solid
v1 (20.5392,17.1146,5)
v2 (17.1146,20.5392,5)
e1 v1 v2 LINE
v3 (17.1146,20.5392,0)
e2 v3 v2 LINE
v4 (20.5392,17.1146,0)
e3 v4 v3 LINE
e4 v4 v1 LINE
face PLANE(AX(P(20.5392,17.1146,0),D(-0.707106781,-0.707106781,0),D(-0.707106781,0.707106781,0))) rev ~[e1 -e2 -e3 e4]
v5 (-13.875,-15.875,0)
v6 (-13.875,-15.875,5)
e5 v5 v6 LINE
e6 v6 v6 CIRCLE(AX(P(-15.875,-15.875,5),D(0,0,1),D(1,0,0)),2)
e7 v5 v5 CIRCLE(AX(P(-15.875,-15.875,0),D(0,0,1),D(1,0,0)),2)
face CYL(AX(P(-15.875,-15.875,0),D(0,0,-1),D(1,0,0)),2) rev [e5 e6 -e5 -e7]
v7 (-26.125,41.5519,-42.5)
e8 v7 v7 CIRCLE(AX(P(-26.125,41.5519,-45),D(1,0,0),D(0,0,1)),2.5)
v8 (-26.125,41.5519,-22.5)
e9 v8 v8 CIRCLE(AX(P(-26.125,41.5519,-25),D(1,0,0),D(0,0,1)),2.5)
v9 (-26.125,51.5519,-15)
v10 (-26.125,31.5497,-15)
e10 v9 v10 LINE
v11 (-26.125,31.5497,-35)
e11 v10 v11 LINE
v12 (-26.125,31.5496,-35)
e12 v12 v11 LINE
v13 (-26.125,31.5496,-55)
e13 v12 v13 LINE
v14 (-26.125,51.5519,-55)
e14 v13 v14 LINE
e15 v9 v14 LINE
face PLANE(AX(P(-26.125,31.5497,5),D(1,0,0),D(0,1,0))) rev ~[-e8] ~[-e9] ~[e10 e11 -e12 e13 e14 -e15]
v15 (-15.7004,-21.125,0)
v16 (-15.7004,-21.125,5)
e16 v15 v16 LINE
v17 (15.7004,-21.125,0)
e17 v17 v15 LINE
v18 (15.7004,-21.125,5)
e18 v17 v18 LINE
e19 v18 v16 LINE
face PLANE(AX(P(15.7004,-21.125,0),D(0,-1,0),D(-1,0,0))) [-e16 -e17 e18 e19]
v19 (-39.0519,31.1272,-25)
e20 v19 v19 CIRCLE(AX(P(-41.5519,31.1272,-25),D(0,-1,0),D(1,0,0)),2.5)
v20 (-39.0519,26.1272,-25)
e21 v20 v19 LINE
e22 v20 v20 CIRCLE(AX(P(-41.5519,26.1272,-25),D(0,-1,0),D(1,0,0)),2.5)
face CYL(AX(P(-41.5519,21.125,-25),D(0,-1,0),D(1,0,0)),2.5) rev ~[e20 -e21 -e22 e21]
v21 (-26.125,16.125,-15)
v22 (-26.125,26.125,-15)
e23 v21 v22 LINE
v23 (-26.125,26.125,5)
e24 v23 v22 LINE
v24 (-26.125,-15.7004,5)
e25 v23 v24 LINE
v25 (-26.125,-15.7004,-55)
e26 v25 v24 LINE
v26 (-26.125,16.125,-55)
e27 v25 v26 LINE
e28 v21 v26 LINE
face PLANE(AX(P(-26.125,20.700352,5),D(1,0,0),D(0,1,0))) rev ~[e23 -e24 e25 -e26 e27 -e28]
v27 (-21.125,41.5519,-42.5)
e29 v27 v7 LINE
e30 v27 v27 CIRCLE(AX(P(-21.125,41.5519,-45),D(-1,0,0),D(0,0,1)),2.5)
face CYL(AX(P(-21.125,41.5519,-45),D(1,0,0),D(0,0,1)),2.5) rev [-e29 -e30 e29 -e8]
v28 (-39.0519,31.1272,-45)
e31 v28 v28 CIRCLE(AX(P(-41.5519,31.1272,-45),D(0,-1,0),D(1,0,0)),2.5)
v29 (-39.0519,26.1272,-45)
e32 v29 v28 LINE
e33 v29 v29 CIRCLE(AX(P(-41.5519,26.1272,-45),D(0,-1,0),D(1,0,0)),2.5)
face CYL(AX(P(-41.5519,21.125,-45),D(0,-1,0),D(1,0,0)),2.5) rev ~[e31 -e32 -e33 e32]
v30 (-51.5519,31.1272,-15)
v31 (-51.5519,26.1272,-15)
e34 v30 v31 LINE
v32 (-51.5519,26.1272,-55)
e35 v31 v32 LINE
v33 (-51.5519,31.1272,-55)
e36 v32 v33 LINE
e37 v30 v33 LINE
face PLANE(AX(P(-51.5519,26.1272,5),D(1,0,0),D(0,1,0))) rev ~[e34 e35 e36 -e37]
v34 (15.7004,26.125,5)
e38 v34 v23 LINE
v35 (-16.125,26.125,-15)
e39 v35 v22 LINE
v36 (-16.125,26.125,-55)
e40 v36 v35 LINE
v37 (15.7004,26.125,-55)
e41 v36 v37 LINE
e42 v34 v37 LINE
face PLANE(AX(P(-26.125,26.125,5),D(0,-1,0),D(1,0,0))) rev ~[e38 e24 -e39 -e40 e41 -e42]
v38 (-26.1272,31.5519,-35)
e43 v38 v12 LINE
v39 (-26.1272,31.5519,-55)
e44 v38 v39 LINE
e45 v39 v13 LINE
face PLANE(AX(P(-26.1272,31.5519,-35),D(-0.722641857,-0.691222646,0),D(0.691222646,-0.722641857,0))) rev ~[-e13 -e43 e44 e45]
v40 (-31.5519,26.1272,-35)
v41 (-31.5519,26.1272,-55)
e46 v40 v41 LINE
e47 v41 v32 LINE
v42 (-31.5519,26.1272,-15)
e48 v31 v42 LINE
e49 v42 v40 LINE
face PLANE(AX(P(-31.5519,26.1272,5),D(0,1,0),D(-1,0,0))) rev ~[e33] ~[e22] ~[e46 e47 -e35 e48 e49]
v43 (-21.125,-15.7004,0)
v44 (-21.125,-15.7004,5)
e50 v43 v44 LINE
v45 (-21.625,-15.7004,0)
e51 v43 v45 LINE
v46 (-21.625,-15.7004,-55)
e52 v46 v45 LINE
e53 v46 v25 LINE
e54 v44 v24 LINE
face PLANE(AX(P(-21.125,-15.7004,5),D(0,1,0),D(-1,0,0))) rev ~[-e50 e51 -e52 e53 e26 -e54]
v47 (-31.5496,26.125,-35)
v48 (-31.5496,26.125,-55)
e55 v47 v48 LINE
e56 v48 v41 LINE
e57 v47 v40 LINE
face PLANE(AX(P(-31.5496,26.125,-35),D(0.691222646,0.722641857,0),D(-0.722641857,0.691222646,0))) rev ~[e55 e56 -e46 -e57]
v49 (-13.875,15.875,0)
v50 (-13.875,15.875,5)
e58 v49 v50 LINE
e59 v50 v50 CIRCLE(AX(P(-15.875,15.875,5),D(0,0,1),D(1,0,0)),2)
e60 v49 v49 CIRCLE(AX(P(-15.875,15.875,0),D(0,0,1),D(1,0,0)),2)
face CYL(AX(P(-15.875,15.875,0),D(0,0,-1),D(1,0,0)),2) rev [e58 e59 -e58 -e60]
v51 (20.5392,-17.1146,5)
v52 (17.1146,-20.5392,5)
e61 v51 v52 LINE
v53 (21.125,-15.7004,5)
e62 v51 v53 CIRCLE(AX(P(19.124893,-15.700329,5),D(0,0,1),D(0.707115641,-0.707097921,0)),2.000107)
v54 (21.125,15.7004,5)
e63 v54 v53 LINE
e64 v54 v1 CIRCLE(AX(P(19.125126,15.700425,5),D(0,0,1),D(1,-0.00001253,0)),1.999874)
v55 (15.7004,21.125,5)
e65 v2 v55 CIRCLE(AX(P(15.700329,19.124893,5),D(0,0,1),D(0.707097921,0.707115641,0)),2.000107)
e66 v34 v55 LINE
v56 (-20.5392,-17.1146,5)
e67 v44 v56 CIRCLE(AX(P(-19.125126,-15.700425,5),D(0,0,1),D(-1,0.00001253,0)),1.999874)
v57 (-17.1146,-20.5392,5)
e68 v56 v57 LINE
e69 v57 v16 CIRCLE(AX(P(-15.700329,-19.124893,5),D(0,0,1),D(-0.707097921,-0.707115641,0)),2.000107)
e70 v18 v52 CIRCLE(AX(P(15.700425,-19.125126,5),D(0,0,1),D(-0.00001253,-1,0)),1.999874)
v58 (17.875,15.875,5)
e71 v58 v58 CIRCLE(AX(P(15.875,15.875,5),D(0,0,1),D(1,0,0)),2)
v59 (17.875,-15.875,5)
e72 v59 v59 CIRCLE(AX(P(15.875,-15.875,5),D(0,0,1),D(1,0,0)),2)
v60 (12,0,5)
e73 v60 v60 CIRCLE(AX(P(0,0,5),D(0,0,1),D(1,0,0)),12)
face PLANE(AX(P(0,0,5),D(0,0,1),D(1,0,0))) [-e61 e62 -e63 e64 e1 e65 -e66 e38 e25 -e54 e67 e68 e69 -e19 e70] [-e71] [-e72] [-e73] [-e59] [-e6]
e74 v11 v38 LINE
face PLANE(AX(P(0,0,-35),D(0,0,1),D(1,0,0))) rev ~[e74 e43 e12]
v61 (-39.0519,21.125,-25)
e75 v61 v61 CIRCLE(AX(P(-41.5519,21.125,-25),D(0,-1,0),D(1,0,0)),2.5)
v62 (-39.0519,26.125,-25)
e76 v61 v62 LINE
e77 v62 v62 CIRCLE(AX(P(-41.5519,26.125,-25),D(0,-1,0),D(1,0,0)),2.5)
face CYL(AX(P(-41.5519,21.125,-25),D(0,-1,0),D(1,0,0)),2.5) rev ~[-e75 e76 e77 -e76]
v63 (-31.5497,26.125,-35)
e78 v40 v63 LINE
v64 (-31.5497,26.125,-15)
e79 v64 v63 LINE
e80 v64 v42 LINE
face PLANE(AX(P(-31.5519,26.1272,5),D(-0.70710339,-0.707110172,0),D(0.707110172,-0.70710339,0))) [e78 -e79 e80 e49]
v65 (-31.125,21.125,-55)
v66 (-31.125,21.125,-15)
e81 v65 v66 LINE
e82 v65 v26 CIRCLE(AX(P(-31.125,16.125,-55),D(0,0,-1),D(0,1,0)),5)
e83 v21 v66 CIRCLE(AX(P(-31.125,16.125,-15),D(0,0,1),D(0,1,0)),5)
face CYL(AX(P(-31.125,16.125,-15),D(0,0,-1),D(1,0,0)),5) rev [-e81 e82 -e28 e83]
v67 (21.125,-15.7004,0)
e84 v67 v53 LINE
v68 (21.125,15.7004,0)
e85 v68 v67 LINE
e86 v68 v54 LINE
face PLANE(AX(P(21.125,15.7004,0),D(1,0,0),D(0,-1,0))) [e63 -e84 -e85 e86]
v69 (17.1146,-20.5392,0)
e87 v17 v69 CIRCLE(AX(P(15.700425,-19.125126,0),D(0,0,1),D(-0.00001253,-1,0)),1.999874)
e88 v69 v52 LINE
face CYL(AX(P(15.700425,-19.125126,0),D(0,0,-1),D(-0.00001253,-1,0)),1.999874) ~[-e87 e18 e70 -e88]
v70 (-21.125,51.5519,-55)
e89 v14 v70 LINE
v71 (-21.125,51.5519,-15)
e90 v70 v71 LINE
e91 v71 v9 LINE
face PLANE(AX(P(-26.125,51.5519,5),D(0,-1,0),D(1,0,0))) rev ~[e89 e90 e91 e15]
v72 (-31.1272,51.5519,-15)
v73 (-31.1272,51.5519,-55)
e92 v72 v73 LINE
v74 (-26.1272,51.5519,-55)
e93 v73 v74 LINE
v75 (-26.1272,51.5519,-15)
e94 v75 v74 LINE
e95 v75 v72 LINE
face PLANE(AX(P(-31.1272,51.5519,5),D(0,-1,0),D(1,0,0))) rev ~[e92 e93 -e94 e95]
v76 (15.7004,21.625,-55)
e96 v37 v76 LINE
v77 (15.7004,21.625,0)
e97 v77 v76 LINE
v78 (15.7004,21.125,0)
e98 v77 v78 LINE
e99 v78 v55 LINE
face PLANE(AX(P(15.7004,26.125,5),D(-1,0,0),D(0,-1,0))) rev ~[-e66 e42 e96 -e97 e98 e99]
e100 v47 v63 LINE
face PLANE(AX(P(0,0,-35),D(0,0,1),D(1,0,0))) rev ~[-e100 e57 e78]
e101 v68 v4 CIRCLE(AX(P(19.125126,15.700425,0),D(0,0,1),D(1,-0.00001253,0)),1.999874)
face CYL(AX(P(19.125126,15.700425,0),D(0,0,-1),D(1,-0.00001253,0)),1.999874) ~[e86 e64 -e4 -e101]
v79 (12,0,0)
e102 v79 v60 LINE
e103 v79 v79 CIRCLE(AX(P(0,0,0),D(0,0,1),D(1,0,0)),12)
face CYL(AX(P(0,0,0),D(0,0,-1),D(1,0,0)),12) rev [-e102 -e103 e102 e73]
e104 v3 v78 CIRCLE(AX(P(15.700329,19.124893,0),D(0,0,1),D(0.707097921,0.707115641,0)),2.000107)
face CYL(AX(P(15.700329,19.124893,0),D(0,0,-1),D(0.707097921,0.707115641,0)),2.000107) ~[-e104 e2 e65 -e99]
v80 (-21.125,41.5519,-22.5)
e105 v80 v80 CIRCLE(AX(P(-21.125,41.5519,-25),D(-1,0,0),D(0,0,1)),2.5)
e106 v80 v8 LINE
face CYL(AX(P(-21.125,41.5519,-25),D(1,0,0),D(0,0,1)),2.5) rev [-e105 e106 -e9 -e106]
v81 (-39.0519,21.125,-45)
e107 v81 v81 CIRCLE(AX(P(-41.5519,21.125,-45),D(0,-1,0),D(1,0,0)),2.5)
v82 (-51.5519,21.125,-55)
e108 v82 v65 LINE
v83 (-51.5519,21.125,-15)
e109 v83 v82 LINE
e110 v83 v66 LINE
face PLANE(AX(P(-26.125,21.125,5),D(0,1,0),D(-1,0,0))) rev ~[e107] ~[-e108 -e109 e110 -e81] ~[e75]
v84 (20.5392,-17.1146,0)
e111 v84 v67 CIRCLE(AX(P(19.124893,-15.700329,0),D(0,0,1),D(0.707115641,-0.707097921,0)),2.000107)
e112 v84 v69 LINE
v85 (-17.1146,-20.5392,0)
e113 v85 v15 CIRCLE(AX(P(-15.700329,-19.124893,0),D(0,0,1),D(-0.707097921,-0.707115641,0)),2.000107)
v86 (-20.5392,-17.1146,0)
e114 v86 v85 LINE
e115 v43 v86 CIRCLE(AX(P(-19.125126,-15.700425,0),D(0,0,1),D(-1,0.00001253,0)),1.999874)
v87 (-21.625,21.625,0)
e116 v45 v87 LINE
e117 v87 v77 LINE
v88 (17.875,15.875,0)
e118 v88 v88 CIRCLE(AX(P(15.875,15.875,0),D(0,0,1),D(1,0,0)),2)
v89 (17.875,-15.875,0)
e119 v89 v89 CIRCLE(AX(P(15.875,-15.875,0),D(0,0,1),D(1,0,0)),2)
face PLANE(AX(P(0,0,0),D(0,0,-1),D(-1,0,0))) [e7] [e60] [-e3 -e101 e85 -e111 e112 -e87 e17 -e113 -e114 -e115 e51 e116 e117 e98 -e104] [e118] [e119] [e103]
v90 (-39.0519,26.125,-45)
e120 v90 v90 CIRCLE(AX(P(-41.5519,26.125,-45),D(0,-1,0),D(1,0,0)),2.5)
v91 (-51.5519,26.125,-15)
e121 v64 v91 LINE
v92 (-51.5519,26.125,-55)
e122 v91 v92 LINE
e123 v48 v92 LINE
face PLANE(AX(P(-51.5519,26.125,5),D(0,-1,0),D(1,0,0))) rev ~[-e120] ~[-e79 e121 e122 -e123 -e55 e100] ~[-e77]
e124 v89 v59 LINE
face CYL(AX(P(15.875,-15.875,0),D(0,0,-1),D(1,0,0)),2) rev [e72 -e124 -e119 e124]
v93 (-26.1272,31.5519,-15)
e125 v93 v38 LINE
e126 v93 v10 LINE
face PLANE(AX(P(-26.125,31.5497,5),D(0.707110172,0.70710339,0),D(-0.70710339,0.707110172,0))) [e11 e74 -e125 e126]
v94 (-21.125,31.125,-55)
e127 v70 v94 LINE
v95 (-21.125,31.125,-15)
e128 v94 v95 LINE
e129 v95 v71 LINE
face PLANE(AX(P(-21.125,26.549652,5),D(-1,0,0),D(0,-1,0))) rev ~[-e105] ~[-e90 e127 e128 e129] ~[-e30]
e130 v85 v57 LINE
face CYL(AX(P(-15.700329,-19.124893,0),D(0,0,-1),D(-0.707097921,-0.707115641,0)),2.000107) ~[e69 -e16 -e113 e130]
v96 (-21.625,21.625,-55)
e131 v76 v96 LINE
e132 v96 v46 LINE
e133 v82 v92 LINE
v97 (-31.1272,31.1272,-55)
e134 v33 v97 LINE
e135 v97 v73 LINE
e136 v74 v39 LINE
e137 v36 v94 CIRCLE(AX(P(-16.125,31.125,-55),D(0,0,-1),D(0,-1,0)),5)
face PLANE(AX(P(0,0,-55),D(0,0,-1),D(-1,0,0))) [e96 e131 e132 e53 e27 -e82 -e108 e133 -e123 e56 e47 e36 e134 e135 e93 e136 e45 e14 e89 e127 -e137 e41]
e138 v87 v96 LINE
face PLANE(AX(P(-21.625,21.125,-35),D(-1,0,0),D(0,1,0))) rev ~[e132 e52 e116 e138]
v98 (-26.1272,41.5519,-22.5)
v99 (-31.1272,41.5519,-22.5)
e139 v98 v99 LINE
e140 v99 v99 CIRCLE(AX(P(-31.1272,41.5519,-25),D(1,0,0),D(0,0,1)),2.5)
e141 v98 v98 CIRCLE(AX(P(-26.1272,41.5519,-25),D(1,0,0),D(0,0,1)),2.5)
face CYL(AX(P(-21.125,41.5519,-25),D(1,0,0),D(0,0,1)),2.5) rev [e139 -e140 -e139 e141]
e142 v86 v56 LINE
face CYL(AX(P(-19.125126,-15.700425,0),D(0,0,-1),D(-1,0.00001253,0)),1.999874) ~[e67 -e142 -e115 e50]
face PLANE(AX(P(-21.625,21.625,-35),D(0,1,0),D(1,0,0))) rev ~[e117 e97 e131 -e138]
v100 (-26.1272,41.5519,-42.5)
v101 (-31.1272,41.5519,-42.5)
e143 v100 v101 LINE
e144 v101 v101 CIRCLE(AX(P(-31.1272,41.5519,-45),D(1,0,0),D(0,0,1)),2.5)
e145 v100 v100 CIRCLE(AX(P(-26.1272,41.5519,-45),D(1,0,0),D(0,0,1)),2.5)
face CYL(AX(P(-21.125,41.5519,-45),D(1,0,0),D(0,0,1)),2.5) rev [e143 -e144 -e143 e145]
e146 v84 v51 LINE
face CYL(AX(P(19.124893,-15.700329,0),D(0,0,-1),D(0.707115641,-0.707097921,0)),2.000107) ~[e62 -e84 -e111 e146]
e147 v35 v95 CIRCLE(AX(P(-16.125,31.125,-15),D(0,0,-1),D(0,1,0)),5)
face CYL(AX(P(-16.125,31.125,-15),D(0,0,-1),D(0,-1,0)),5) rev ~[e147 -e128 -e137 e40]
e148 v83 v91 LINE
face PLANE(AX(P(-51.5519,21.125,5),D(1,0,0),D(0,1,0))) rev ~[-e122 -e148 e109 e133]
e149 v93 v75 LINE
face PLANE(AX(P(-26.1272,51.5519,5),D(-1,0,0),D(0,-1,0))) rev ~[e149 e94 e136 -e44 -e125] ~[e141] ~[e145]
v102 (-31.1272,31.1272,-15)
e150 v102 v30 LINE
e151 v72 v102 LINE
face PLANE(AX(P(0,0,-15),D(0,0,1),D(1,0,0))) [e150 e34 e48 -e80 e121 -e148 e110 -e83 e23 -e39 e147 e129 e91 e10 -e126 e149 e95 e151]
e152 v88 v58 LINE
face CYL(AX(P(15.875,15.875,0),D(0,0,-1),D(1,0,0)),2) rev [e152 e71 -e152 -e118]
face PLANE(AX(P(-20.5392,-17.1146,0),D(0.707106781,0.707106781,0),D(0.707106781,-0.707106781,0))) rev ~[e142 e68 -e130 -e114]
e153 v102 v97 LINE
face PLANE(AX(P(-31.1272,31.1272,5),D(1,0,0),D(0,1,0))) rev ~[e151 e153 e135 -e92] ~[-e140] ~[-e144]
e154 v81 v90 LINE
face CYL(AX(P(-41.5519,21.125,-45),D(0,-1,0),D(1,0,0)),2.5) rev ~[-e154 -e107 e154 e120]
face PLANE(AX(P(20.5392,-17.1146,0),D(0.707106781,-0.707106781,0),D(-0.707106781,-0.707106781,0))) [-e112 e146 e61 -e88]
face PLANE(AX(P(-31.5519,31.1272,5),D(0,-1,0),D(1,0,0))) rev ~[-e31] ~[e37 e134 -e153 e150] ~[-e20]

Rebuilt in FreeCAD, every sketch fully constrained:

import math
import FreeCAD as App
import Part
import Sketcher
from FreeCAD import Vector


def edges_at(feature, points):
    """Names of the edges that pass closest to the given points."""
    edges = feature.Shape.Edges
    near = lambda p: min(range(len(edges)), key=lambda i: edges[i].distToShape(Part.Vertex(*p))[0])
    return sorted({f"Edge{near(p) + 1}" for p in points})

doc = App.newDocument("Part")
body = doc.addObject("PartDesign::Body", "Body")

# Sketch on XY plane
sketch1 = body.newObject("Sketcher::SketchObject", "Sketch")
sketch1.AttachmentSupport = (doc.getObject("XY_Plane"), [""])
sketch1.MapMode = "FlatFace"
sketch1.addGeometry(Part.LineSegment(Vector(-17.1, 20.5, 0), Vector(-20.5, 17.1, 0)), False)
sketch1.addGeometry(Part.ArcOfCircle(Part.Circle(Vector(-19.1, 15.7, 0), Vector(0, 0, 1), 2), math.radians(135), math.radians(180)), False)
sketch1.addGeometry(Part.LineSegment(Vector(-21.1, 15.7, 0), Vector(-21.1, -15.7, 0)), False)
sketch1.addGeometry(Part.ArcOfCircle(Part.Circle(Vector(-19.1, -15.7, 0), Vector(0, 0, 1), 2), math.radians(180), math.radians(225)), False)
sketch1.addGeometry(Part.LineSegment(Vector(-20.5, -17.1, 0), Vector(-17.1, -20.5, 0)), False)
sketch1.addGeometry(Part.ArcOfCircle(Part.Circle(Vector(-15.7, -19.1, 0), Vector(0, 0, 1), 2), math.radians(-135), math.radians(-90)), False)
sketch1.addGeometry(Part.LineSegment(Vector(-15.7, -21.1, 0), Vector(15.7, -21.1, 0)), False)
sketch1.addGeometry(Part.ArcOfCircle(Part.Circle(Vector(15.7, -19.1, 0), Vector(0, 0, 1), 2), math.radians(-90), math.radians(-45)), False)
sketch1.addGeometry(Part.LineSegment(Vector(17.1, -20.5, 0), Vector(20.5, -17.1, 0)), False)
sketch1.addGeometry(Part.ArcOfCircle(Part.Circle(Vector(19.1, -15.7, 0), Vector(0, 0, 1), 2), math.radians(-45), math.radians(0)), False)
sketch1.addGeometry(Part.LineSegment(Vector(21.1, -15.7, 0), Vector(21.1, 15.7, 0)), False)
sketch1.addGeometry(Part.ArcOfCircle(Part.Circle(Vector(19.1, 15.7, 0), Vector(0, 0, 1), 2), math.radians(0), math.radians(45)), False)
sketch1.addGeometry(Part.LineSegment(Vector(20.5, 17.1, 0), Vector(17.1, 20.5, 0)), False)
sketch1.addGeometry(Part.ArcOfCircle(Part.Circle(Vector(15.7, 19.1, 0), Vector(0, 0, 1), 2), math.radians(45), math.radians(90)), False)
sketch1.addGeometry(Part.LineSegment(Vector(15.7, 21.1, 0), Vector(-15.7, 21.1, 0)), False)
sketch1.addGeometry(Part.ArcOfCircle(Part.Circle(Vector(-15.7, 19.1, 0), Vector(0, 0, 1), 2), math.radians(90), math.radians(135)), False)
sketch1.addGeometry(Part.Circle(Vector(-15.9, -15.9, 0), Vector(0, 0, 1), 2), False)
sketch1.addGeometry(Part.Circle(Vector(15.9, -15.9, 0), Vector(0, 0, 1), 2), False)
sketch1.addGeometry(Part.Circle(Vector(-15.9, 15.9, 0), Vector(0, 0, 1), 2), False)
sketch1.addGeometry(Part.Circle(Vector(15.9, 15.9, 0), Vector(0, 0, 1), 2), False)
sketch1.addGeometry(Part.Circle(Vector(0, 0, 0), Vector(0, 0, 1), 12), False)
sketch1.addConstraint(Sketcher.Constraint("Tangent", 0, 2, 1, 1))
sketch1.addConstraint(Sketcher.Constraint("Tangent", 1, 2, 2, 1))
sketch1.addConstraint(Sketcher.Constraint("Tangent", 2, 2, 3, 1))
sketch1.addConstraint(Sketcher.Constraint("Tangent", 3, 2, 4, 1))
sketch1.addConstraint(Sketcher.Constraint("Tangent", 4, 2, 5, 1))
sketch1.addConstraint(Sketcher.Constraint("Tangent", 5, 2, 6, 1))
sketch1.addConstraint(Sketcher.Constraint("Tangent", 6, 2, 7, 1))
sketch1.addConstraint(Sketcher.Constraint("Tangent", 7, 2, 8, 1))
sketch1.addConstraint(Sketcher.Constraint("Tangent", 8, 2, 9, 1))
sketch1.addConstraint(Sketcher.Constraint("Tangent", 9, 2, 10, 1))
sketch1.addConstraint(Sketcher.Constraint("Tangent", 10, 2, 11, 1))
sketch1.addConstraint(Sketcher.Constraint("Tangent", 11, 2, 12, 1))
sketch1.addConstraint(Sketcher.Constraint("Tangent", 12, 2, 13, 1))
sketch1.addConstraint(Sketcher.Constraint("Tangent", 13, 2, 14, 1))
sketch1.addConstraint(Sketcher.Constraint("Tangent", 14, 2, 15, 1))
sketch1.addConstraint(Sketcher.Constraint("Tangent", 15, 2, 0, 1))
sketch1.addConstraint(Sketcher.Constraint("Vertical", 2))
sketch1.addConstraint(Sketcher.Constraint("Horizontal", 6))
sketch1.addConstraint(Sketcher.Constraint("Vertical", 10))
sketch1.addConstraint(Sketcher.Constraint("Horizontal", 14))
sketch1.addConstraint(Sketcher.Constraint("Coincident", 20, 3, -1, 1))
sketch1.addConstraint(Sketcher.Constraint("Equal", 1, 3))
sketch1.addConstraint(Sketcher.Constraint("Equal", 3, 5))
sketch1.addConstraint(Sketcher.Constraint("Equal", 5, 7))
sketch1.addConstraint(Sketcher.Constraint("Equal", 7, 9))
sketch1.addConstraint(Sketcher.Constraint("Equal", 9, 11))
sketch1.addConstraint(Sketcher.Constraint("Equal", 11, 13))
sketch1.addConstraint(Sketcher.Constraint("Equal", 13, 15))
sketch1.addConstraint(Sketcher.Constraint("Equal", 15, 16))
sketch1.addConstraint(Sketcher.Constraint("Equal", 16, 17))
sketch1.addConstraint(Sketcher.Constraint("Equal", 17, 18))
sketch1.addConstraint(Sketcher.Constraint("Equal", 18, 19))
sketch1.addConstraint(Sketcher.Constraint("Symmetric", 1, 3, 9, 3, -1, 1))
sketch1.addConstraint(Sketcher.Constraint("Symmetric", 5, 3, 13, 3, -1, 1))
sketch1.addConstraint(Sketcher.Constraint("Symmetric", 17, 3, 18, 3, -1, 1))
sketch1.addConstraint(Sketcher.Constraint("Symmetric", 16, 3, 19, 3, -1, 1))
sketch1.addConstraint(Sketcher.Constraint("Symmetric", 16, 3, 17, 3, -2))
sketch1.addConstraint(Sketcher.Constraint("Symmetric", 4, 2, 7, 2, -2))
sketch1.addConstraint(Sketcher.Constraint("Symmetric", 0, 2, 11, 2, -2))
sketch1.addConstraint(Sketcher.Constraint("Perpendicular", 0, 4))
sketch1.addConstraint(Sketcher.Constraint("Equal", 14, 2))
sketch1.addConstraint(Sketcher.Constraint("Diameter", 16, 4.0))
sketch1.addConstraint(Sketcher.Constraint("Diameter", 20, 24.0))
sketch1.addConstraint(Sketcher.Constraint("DistanceX", 16, 3, 9, 3, 35.0))
sketch1.addConstraint(Sketcher.Constraint("DistanceX", 3, 3, 9, 3, 38.25))
sketch1.addConstraint(Sketcher.Constraint("DistanceY", 5, 3, 16, 3, 3.25))
sketch1.addConstraint(Sketcher.Constraint("Distance", 0, 4.843))
pad1 = body.newObject("PartDesign::Pad", "Pad")
pad1.Profile = sketch1
pad1.Length = 5

# Sketch on XY plane
sketch2 = body.newObject("Sketcher::SketchObject", "Sketch001")
sketch2.AttachmentSupport = (doc.getObject("XY_Plane"), [""])
sketch2.MapMode = "FlatFace"
sketch2.AttachmentOffset = App.Placement(Vector(0, 0, 5), App.Rotation())
sketch2.addGeometry(Part.LineSegment(Vector(15.7004, 26.125, 0), Vector(-21.125, 26.125, 0)), False)
sketch2.addGeometry(Part.LineSegment(Vector(-21.125, 26.125, 0), Vector(-21.125, 51.5519, 0)), False)
sketch2.addGeometry(Part.LineSegment(Vector(-21.125, 51.5519, 0), Vector(-26.125, 51.5519, 0)), False)
sketch2.addGeometry(Part.LineSegment(Vector(-26.125, 51.5519, 0), Vector(-26.125, 31.5497, 0)), False)
sketch2.addGeometry(Part.LineSegment(Vector(-26.125, 31.5497, 0), Vector(-26.1272, 31.5519, 0)), False)
sketch2.addGeometry(Part.LineSegment(Vector(-26.1272, 31.5519, 0), Vector(-26.1272, 51.5519, 0)), False)
sketch2.addGeometry(Part.LineSegment(Vector(-26.1272, 51.5519, 0), Vector(-31.1272, 51.5519, 0)), False)
sketch2.addGeometry(Part.LineSegment(Vector(-31.1272, 51.5519, 0), Vector(-31.1272, 31.1272, 0)), False)
sketch2.addGeometry(Part.LineSegment(Vector(-31.1272, 31.1272, 0), Vector(-51.5519, 31.1272, 0)), False)
sketch2.addGeometry(Part.LineSegment(Vector(-51.5519, 31.1272, 0), Vector(-51.5519, 26.1272, 0)), False)
sketch2.addGeometry(Part.LineSegment(Vector(-51.5519, 26.1272, 0), Vector(-31.5519, 26.1272, 0)), False)
sketch2.addGeometry(Part.LineSegment(Vector(-31.5519, 26.1272, 0), Vector(-31.5497, 26.125, 0)), False)
sketch2.addGeometry(Part.LineSegment(Vector(-31.5497, 26.125, 0), Vector(-51.5519, 26.125, 0)), False)
sketch2.addGeometry(Part.LineSegment(Vector(-51.5519, 26.125, 0), Vector(-51.5519, 21.125, 0)), False)
sketch2.addGeometry(Part.LineSegment(Vector(-51.5519, 21.125, 0), Vector(-26.125, 21.125, 0)), False)
sketch2.addGeometry(Part.LineSegment(Vector(-26.125, 21.125, 0), Vector(-26.125, -15.7004, 0)), False)
sketch2.addGeometry(Part.LineSegment(Vector(-26.125, -15.7004, 0), Vector(-21.125, -15.7004, 0)), False)
sketch2.addGeometry(Part.LineSegment(Vector(-21.125, -15.7004, 0), Vector(-21.125, 21.125, 0)), False)
sketch2.addGeometry(Part.LineSegment(Vector(-21.125, 21.125, 0), Vector(15.7004, 21.125, 0)), False)
sketch2.addGeometry(Part.LineSegment(Vector(15.7004, 21.125, 0), Vector(15.7004, 26.125, 0)), False)
sketch2.addConstraint(Sketcher.Constraint("Coincident", 0, 2, 1, 1))
sketch2.addConstraint(Sketcher.Constraint("Coincident", 1, 2, 2, 1))
sketch2.addConstraint(Sketcher.Constraint("Coincident", 2, 2, 3, 1))
sketch2.addConstraint(Sketcher.Constraint("Coincident", 3, 2, 4, 1))
sketch2.addConstraint(Sketcher.Constraint("Coincident", 4, 2, 5, 1))
sketch2.addConstraint(Sketcher.Constraint("Coincident", 5, 2, 6, 1))
sketch2.addConstraint(Sketcher.Constraint("Coincident", 6, 2, 7, 1))
sketch2.addConstraint(Sketcher.Constraint("Coincident", 7, 2, 8, 1))
sketch2.addConstraint(Sketcher.Constraint("Coincident", 8, 2, 9, 1))
sketch2.addConstraint(Sketcher.Constraint("Coincident", 9, 2, 10, 1))
sketch2.addConstraint(Sketcher.Constraint("Coincident", 10, 2, 11, 1))
sketch2.addConstraint(Sketcher.Constraint("Coincident", 11, 2, 12, 1))
sketch2.addConstraint(Sketcher.Constraint("Coincident", 12, 2, 13, 1))
sketch2.addConstraint(Sketcher.Constraint("Coincident", 13, 2, 14, 1))
sketch2.addConstraint(Sketcher.Constraint("Coincident", 14, 2, 15, 1))
sketch2.addConstraint(Sketcher.Constraint("Coincident", 15, 2, 16, 1))
sketch2.addConstraint(Sketcher.Constraint("Coincident", 16, 2, 17, 1))
sketch2.addConstraint(Sketcher.Constraint("Coincident", 17, 2, 18, 1))
sketch2.addConstraint(Sketcher.Constraint("Coincident", 18, 2, 19, 1))
sketch2.addConstraint(Sketcher.Constraint("Coincident", 19, 2, 0, 1))
sketch2.addConstraint(Sketcher.Constraint("Horizontal", 0))
sketch2.addConstraint(Sketcher.Constraint("Vertical", 1))
sketch2.addConstraint(Sketcher.Constraint("Horizontal", 2))
sketch2.addConstraint(Sketcher.Constraint("Vertical", 3))
sketch2.addConstraint(Sketcher.Constraint("Vertical", 5))
sketch2.addConstraint(Sketcher.Constraint("Horizontal", 6))
sketch2.addConstraint(Sketcher.Constraint("Vertical", 7))
sketch2.addConstraint(Sketcher.Constraint("Horizontal", 8))
sketch2.addConstraint(Sketcher.Constraint("Vertical", 9))
sketch2.addConstraint(Sketcher.Constraint("Horizontal", 10))
sketch2.addConstraint(Sketcher.Constraint("Horizontal", 12))
sketch2.addConstraint(Sketcher.Constraint("Vertical", 13))
sketch2.addConstraint(Sketcher.Constraint("Horizontal", 14))
sketch2.addConstraint(Sketcher.Constraint("Vertical", 15))
sketch2.addConstraint(Sketcher.Constraint("Horizontal", 16))
sketch2.addConstraint(Sketcher.Constraint("Vertical", 17))
sketch2.addConstraint(Sketcher.Constraint("Horizontal", 18))
sketch2.addConstraint(Sketcher.Constraint("Vertical", 19))
sketch2.addConstraint(Sketcher.Constraint("Parallel", 4, 11))
sketch2.addConstraint(Sketcher.Constraint("Horizontal", 2, 2, 5, 2))
sketch2.addConstraint(Sketcher.Constraint("Horizontal", 0, 2, 11, 2))
sketch2.addConstraint(Sketcher.Constraint("Horizontal", 14, 2, 17, 2))
sketch2.addConstraint(Sketcher.Constraint("Vertical", 9, 2, 12, 2))
sketch2.addConstraint(Sketcher.Constraint("Vertical", 3, 2, 14, 2))
sketch2.addConstraint(Sketcher.Constraint("Vertical", 1, 2, 16, 2))
sketch2.addConstraint(Sketcher.Constraint("Equal", 2, 6))
sketch2.addConstraint(Sketcher.Constraint("Equal", 14, 1))
sketch2.addConstraint(Sketcher.Constraint("Equal", 12, 3))
sketch2.addConstraint(Sketcher.Constraint("Equal", 10, 5))
sketch2.addConstraint(Sketcher.Constraint("Equal", 8, 7))
sketch2.addConstraint(Sketcher.Constraint("Equal", 16, 9))
sketch2.addConstraint(Sketcher.Constraint("Equal", 9, 13))
sketch2.addConstraint(Sketcher.Constraint("Equal", 18, 15))
sketch2.addConstraint(Sketcher.Constraint("DistanceX", 2, 2, 2, 1, 5.0))
sketch2.addConstraint(Sketcher.Constraint("DistanceX", 10, 1, 10, 2, 20.0))
sketch2.addConstraint(Sketcher.Constraint("DistanceX", 14, 1, 14, 2, 25.427))
sketch2.addConstraint(Sketcher.Constraint("Distance", 4, 0.003))
sketch2.addConstraint(Sketcher.Constraint("DistanceX", 0, 2, 0, 1, 36.8254))
sketch2.addConstraint(Sketcher.Constraint("DistanceX", 0, 2, -1, 1, 21.125))
sketch2.addConstraint(Sketcher.Constraint("DistanceY", -1, 1, 0, 2, 26.125))
pad2 = body.newObject("PartDesign::Pad", "Pad001")
pad2.Profile = sketch2
pad2.Length = 40
pad2.Reversed = True

# Sketch on XY plane
sketch3 = body.newObject("Sketcher::SketchObject", "Sketch002")
sketch3.AttachmentSupport = (doc.getObject("XY_Plane"), [""])
sketch3.MapMode = "FlatFace"
sketch3.AttachmentOffset = App.Placement(Vector(0, 0, 5), App.Rotation())
sketch3.addGeometry(Part.ArcOfCircle(Part.Circle(Vector(-15.7, 19.1, 0), Vector(0, 0, 1), 2), math.radians(90), math.radians(135)), False)
sketch3.addGeometry(Part.LineSegment(Vector(-15.7, 21.1, 0), Vector(-21.1, 21.1, 0)), False)
sketch3.addGeometry(Part.LineSegment(Vector(-21.1, 21.1, 0), Vector(-21.1, 15.7, 0)), False)
sketch3.addGeometry(Part.ArcOfCircle(Part.Circle(Vector(-19.1, 15.7, 0), Vector(0, 0, 1), 2), math.radians(135), math.radians(180)), False)
sketch3.addGeometry(Part.LineSegment(Vector(-20.5, 17.1, 0), Vector(-17.1, 20.5, 0)), False)
sketch3.addConstraint(Sketcher.Constraint("Tangent", 0, 1, 1, 1))
sketch3.addConstraint(Sketcher.Constraint("Coincident", 1, 2, 2, 1))
sketch3.addConstraint(Sketcher.Constraint("Tangent", 2, 2, 3, 2))
sketch3.addConstraint(Sketcher.Constraint("Tangent", 3, 1, 4, 1))
sketch3.addConstraint(Sketcher.Constraint("Tangent", 4, 2, 0, 2))
sketch3.addConstraint(Sketcher.Constraint("Horizontal", 1))
sketch3.addConstraint(Sketcher.Constraint("Vertical", 2))
sketch3.addConstraint(Sketcher.Constraint("Equal", 0, 3))
sketch3.addConstraint(Sketcher.Constraint("Equal", 1, 2))
sketch3.addConstraint(Sketcher.Constraint("Radius", 0, 2.0))
sketch3.addConstraint(Sketcher.Constraint("Distance", 4, 4.843))
sketch3.addConstraint(Sketcher.Constraint("DistanceY", -1, 1, 0, 3, 19.125))
sketch3.addConstraint(Sketcher.Constraint("DistanceX", 3, 3, -1, 1, 19.125))
pad3 = body.newObject("PartDesign::Pad", "Pad002")
pad3.Profile = sketch3
pad3.Length = 5
pad3.Reversed = True

# Sketch on XY plane
sketch4 = body.newObject("Sketcher::SketchObject", "Sketch003")
sketch4.AttachmentSupport = (doc.getObject("XY_Plane"), [""])
sketch4.MapMode = "FlatFace"
sketch4.AttachmentOffset = App.Placement(Vector(0, 0, 5), App.Rotation())
sketch4.addGeometry(Part.LineSegment(Vector(-26.1, 13.3, 0), Vector(-26.1, 26.1, 0)), False)
sketch4.addGeometry(Part.LineSegment(Vector(-26.1, 26.1, 0), Vector(-19.1, 26.1, 0)), False)
sketch4.addGeometry(Part.LineSegment(Vector(-19.1, 26.1, 0), Vector(-19.1, 59.2, 0)), False)
sketch4.addGeometry(Part.LineSegment(Vector(-19.1, 59.2, 0), Vector(-26.1, 59.2, 0)), False)
sketch4.addGeometry(Part.LineSegment(Vector(-26.1, 59.2, 0), Vector(-26.1, 63.8, 0)), False)
sketch4.addGeometry(Part.LineSegment(Vector(-26.1, 63.8, 0), Vector(-55.9, 63.8, 0)), False)
sketch4.addGeometry(Part.LineSegment(Vector(-55.9, 63.8, 0), Vector(-55.9, 26.1, 0)), False)
sketch4.addGeometry(Part.LineSegment(Vector(-55.9, 26.1, 0), Vector(-51.6, 26.1, 0)), False)
sketch4.addGeometry(Part.LineSegment(Vector(-51.6, 26.1, 0), Vector(-51.6, 13.3, 0)), False)
sketch4.addGeometry(Part.LineSegment(Vector(-51.6, 13.3, 0), Vector(-26.1, 13.3, 0)), False)
sketch4.addConstraint(Sketcher.Constraint("Coincident", 0, 2, 1, 1))
sketch4.addConstraint(Sketcher.Constraint("Coincident", 1, 2, 2, 1))
sketch4.addConstraint(Sketcher.Constraint("Coincident", 2, 2, 3, 1))
sketch4.addConstraint(Sketcher.Constraint("Coincident", 3, 2, 4, 1))
sketch4.addConstraint(Sketcher.Constraint("Coincident", 4, 2, 5, 1))
sketch4.addConstraint(Sketcher.Constraint("Coincident", 5, 2, 6, 1))
sketch4.addConstraint(Sketcher.Constraint("Coincident", 6, 2, 7, 1))
sketch4.addConstraint(Sketcher.Constraint("Coincident", 7, 2, 8, 1))
sketch4.addConstraint(Sketcher.Constraint("Coincident", 8, 2, 9, 1))
sketch4.addConstraint(Sketcher.Constraint("Coincident", 9, 2, 0, 1))
sketch4.addConstraint(Sketcher.Constraint("Vertical", 0))
sketch4.addConstraint(Sketcher.Constraint("Horizontal", 1))
sketch4.addConstraint(Sketcher.Constraint("Vertical", 2))
sketch4.addConstraint(Sketcher.Constraint("Horizontal", 3))
sketch4.addConstraint(Sketcher.Constraint("Vertical", 4))
sketch4.addConstraint(Sketcher.Constraint("Horizontal", 5))
sketch4.addConstraint(Sketcher.Constraint("Vertical", 6))
sketch4.addConstraint(Sketcher.Constraint("Horizontal", 7))
sketch4.addConstraint(Sketcher.Constraint("Vertical", 8))
sketch4.addConstraint(Sketcher.Constraint("Horizontal", 9))
sketch4.addConstraint(Sketcher.Constraint("Horizontal", 1, 2, 6, 2))
sketch4.addConstraint(Sketcher.Constraint("Vertical", 0, 2, 3, 2))
sketch4.addConstraint(Sketcher.Constraint("DistanceX", 9, 1, 9, 2, 25.427))
sketch4.addConstraint(Sketcher.Constraint("DistanceY", 4, 1, 4, 2, 4.673))
sketch4.addConstraint(Sketcher.Constraint("DistanceX", 1, 1, 1, 2, 6.9986))
sketch4.addConstraint(Sketcher.Constraint("DistanceX", 5, 2, 5, 1, 29.7992))
sketch4.addConstraint(Sketcher.Constraint("DistanceY", 0, 1, 0, 2, 12.7963))
sketch4.addConstraint(Sketcher.Constraint("DistanceY", 2, 1, 2, 2, 33.0324))
sketch4.addConstraint(Sketcher.Constraint("DistanceX", 0, 2, -1, 1, 26.125))
sketch4.addConstraint(Sketcher.Constraint("DistanceY", -1, 1, 0, 2, 26.125))
pocket1 = body.newObject("PartDesign::Pocket", "Pocket")
pocket1.Profile = sketch4
pocket1.Length = 20

# Sketch on XY plane
sketch5 = body.newObject("Sketcher::SketchObject", "Sketch004")
sketch5.AttachmentSupport = (doc.getObject("XY_Plane"), [""])
sketch5.MapMode = "FlatFace"
sketch5.AttachmentOffset = App.Placement(Vector(0, 0, -35), App.Rotation())
sketch5.addGeometry(Part.LineSegment(Vector(-22, 22, 0), Vector(23, 22, 0)), False)
sketch5.addGeometry(Part.LineSegment(Vector(23, 22, 0), Vector(23, -22, 0)), False)
sketch5.addGeometry(Part.LineSegment(Vector(23, -22, 0), Vector(-22, -22, 0)), False)
sketch5.addGeometry(Part.LineSegment(Vector(-22, -22, 0), Vector(-22, 22, 0)), False)
sketch5.addConstraint(Sketcher.Constraint("Coincident", 0, 2, 1, 1))
sketch5.addConstraint(Sketcher.Constraint("Coincident", 1, 2, 2, 1))
sketch5.addConstraint(Sketcher.Constraint("Coincident", 2, 2, 3, 1))
sketch5.addConstraint(Sketcher.Constraint("Coincident", 3, 2, 0, 1))
sketch5.addConstraint(Sketcher.Constraint("Horizontal", 0))
sketch5.addConstraint(Sketcher.Constraint("Vertical", 1))
sketch5.addConstraint(Sketcher.Constraint("Horizontal", 2))
sketch5.addConstraint(Sketcher.Constraint("Vertical", 3))
sketch5.addConstraint(Sketcher.Constraint("DistanceX", 0, 1, 0, 2, 44.9174))
sketch5.addConstraint(Sketcher.Constraint("DistanceY", 1, 2, 1, 1, 43.5263))
sketch5.addConstraint(Sketcher.Constraint("DistanceY", -1, 1, 0, 2, 21.625))
sketch5.addConstraint(Sketcher.Constraint("DistanceX", 2, 2, -1, 1, 21.625))
pocket2 = body.newObject("PartDesign::Pocket", "Pocket001")
pocket2.Profile = sketch5
pocket2.Length = 35
pocket2.Reversed = True

# Sketch on XY plane
sketch6 = body.newObject("Sketcher::SketchObject", "Sketch005")
sketch6.AttachmentSupport = (doc.getObject("XY_Plane"), [""])
sketch6.MapMode = "FlatFace"
sketch6.AttachmentOffset = App.Placement(Vector(0, 0, -35), App.Rotation())
sketch6.addGeometry(Part.LineSegment(Vector(-51.5519, 21.125, 0), Vector(-51.5519, 26.125, 0)), False)
sketch6.addGeometry(Part.LineSegment(Vector(-51.5519, 26.125, 0), Vector(-31.5496, 26.125, 0)), False)
sketch6.addGeometry(Part.LineSegment(Vector(-31.5496, 26.125, 0), Vector(-31.5519, 26.1272, 0)), False)
sketch6.addGeometry(Part.LineSegment(Vector(-31.5519, 26.1272, 0), Vector(-51.5519, 26.1272, 0)), False)
sketch6.addGeometry(Part.LineSegment(Vector(-51.5519, 26.1272, 0), Vector(-51.5519, 31.1272, 0)), False)
sketch6.addGeometry(Part.LineSegment(Vector(-51.5519, 31.1272, 0), Vector(-31.1272, 31.1272, 0)), False)
sketch6.addGeometry(Part.LineSegment(Vector(-31.1272, 31.1272, 0), Vector(-31.1272, 51.5519, 0)), False)
sketch6.addGeometry(Part.LineSegment(Vector(-31.1272, 51.5519, 0), Vector(-26.1272, 51.5519, 0)), False)
sketch6.addGeometry(Part.LineSegment(Vector(-26.1272, 51.5519, 0), Vector(-26.1272, 31.5519, 0)), False)
sketch6.addGeometry(Part.LineSegment(Vector(-26.1272, 31.5519, 0), Vector(-26.125, 31.5496, 0)), False)
sketch6.addGeometry(Part.LineSegment(Vector(-26.125, 31.5496, 0), Vector(-26.125, 51.5519, 0)), False)
sketch6.addGeometry(Part.LineSegment(Vector(-26.125, 51.5519, 0), Vector(-21.125, 51.5519, 0)), False)
sketch6.addGeometry(Part.LineSegment(Vector(-21.125, 51.5519, 0), Vector(-21.125, 21.625, 0)), False)
sketch6.addGeometry(Part.LineSegment(Vector(-21.125, 21.625, 0), Vector(-26.125, 21.625, 0)), False)
sketch6.addGeometry(Part.LineSegment(Vector(-26.125, 21.625, 0), Vector(-26.125, 21.125, 0)), False)
sketch6.addGeometry(Part.LineSegment(Vector(-26.125, 21.125, 0), Vector(-51.5519, 21.125, 0)), False)
sketch6.addConstraint(Sketcher.Constraint("Coincident", 0, 2, 1, 1))
sketch6.addConstraint(Sketcher.Constraint("Coincident", 1, 2, 2, 1))
sketch6.addConstraint(Sketcher.Constraint("Coincident", 2, 2, 3, 1))
sketch6.addConstraint(Sketcher.Constraint("Coincident", 3, 2, 4, 1))
sketch6.addConstraint(Sketcher.Constraint("Coincident", 4, 2, 5, 1))
sketch6.addConstraint(Sketcher.Constraint("Coincident", 5, 2, 6, 1))
sketch6.addConstraint(Sketcher.Constraint("Coincident", 6, 2, 7, 1))
sketch6.addConstraint(Sketcher.Constraint("Coincident", 7, 2, 8, 1))
sketch6.addConstraint(Sketcher.Constraint("Coincident", 8, 2, 9, 1))
sketch6.addConstraint(Sketcher.Constraint("Coincident", 9, 2, 10, 1))
sketch6.addConstraint(Sketcher.Constraint("Coincident", 10, 2, 11, 1))
sketch6.addConstraint(Sketcher.Constraint("Coincident", 11, 2, 12, 1))
sketch6.addConstraint(Sketcher.Constraint("Coincident", 12, 2, 13, 1))
sketch6.addConstraint(Sketcher.Constraint("Coincident", 13, 2, 14, 1))
sketch6.addConstraint(Sketcher.Constraint("Coincident", 14, 2, 15, 1))
sketch6.addConstraint(Sketcher.Constraint("Coincident", 15, 2, 0, 1))
sketch6.addConstraint(Sketcher.Constraint("Vertical", 0))
sketch6.addConstraint(Sketcher.Constraint("Horizontal", 1))
sketch6.addConstraint(Sketcher.Constraint("Horizontal", 3))
sketch6.addConstraint(Sketcher.Constraint("Vertical", 4))
sketch6.addConstraint(Sketcher.Constraint("Horizontal", 5))
sketch6.addConstraint(Sketcher.Constraint("Vertical", 6))
sketch6.addConstraint(Sketcher.Constraint("Horizontal", 7))
sketch6.addConstraint(Sketcher.Constraint("Vertical", 8))
sketch6.addConstraint(Sketcher.Constraint("Vertical", 10))
sketch6.addConstraint(Sketcher.Constraint("Horizontal", 11))
sketch6.addConstraint(Sketcher.Constraint("Vertical", 12))
sketch6.addConstraint(Sketcher.Constraint("Horizontal", 13))
sketch6.addConstraint(Sketcher.Constraint("Vertical", 14))
sketch6.addConstraint(Sketcher.Constraint("Horizontal", 15))
sketch6.addConstraint(Sketcher.Constraint("Horizontal", 7, 2, 10, 2))
sketch6.addConstraint(Sketcher.Constraint("Vertical", 0, 2, 3, 2))
sketch6.addConstraint(Sketcher.Constraint("Vertical", 10, 2, 13, 2))
sketch6.addConstraint(Sketcher.Constraint("Equal", 7, 11))
sketch6.addConstraint(Sketcher.Constraint("Equal", 13, 0))
sketch6.addConstraint(Sketcher.Constraint("Equal", 0, 4))
sketch6.addConstraint(Sketcher.Constraint("Equal", 5, 6))
sketch6.addConstraint(Sketcher.Constraint("Equal", 3, 8))
sketch6.addConstraint(Sketcher.Constraint("Equal", 1, 10))
sketch6.addConstraint(Sketcher.Constraint("Equal", 2, 9))
sketch6.addConstraint(Sketcher.Constraint("DistanceX", 7, 1, 7, 2, 5.0))
sketch6.addConstraint(Sketcher.Constraint("DistanceY", 14, 2, 14, 1, 0.5))
sketch6.addConstraint(Sketcher.Constraint("DistanceX", 3, 2, 3, 1, 20.0))
sketch6.addConstraint(Sketcher.Constraint("DistanceX", 15, 2, 15, 1, 25.427))
sketch6.addConstraint(Sketcher.Constraint("DistanceX", 1, 1, 1, 2, 20.0023))
sketch6.addConstraint(Sketcher.Constraint("DistanceX", 5, 1, 5, 2, 20.4247))
sketch6.addConstraint(Sketcher.Constraint("DistanceX", 0, 2, -1, 1, 51.552))
sketch6.addConstraint(Sketcher.Constraint("DistanceY", -1, 1, 0, 2, 26.125))
pad4 = body.newObject("PartDesign::Pad", "Pad003")
pad4.Profile = sketch6
pad4.Length = 20
pad4.Reversed = True

# Sketch on XZ plane
sketch7 = body.newObject("Sketcher::SketchObject", "Sketch006")
sketch7.AttachmentSupport = (doc.getObject("XZ_Plane"), [""])
sketch7.MapMode = "FlatFace"
sketch7.AttachmentOffset = App.Placement(Vector(0, 0, -21.125), App.Rotation())
sketch7.addGeometry(Part.Circle(Vector(-41.6, -45, 0), Vector(0, 0, 1), 2.5), False)
sketch7.addGeometry(Part.Circle(Vector(-41.6, -25, 0), Vector(0, 0, 1), 2.5), False)
sketch7.addConstraint(Sketcher.Constraint("Equal", 0, 1))
sketch7.addConstraint(Sketcher.Constraint("Vertical", 0, 3, 1, 3))
sketch7.addConstraint(Sketcher.Constraint("Diameter", 0, 5.0))
sketch7.addConstraint(Sketcher.Constraint("DistanceY", 0, 3, 1, 3, 20.0))
sketch7.addConstraint(Sketcher.Constraint("DistanceY", 0, 3, -1, 1, 45.0))
sketch7.addConstraint(Sketcher.Constraint("DistanceX", 0, 3, -1, 1, 41.552))
pocket3 = body.newObject("PartDesign::Pocket", "Pocket002")
pocket3.Profile = sketch7
pocket3.Length = 20

# Sketch on YZ plane
sketch8 = body.newObject("Sketcher::SketchObject", "Sketch007")
sketch8.AttachmentSupport = (doc.getObject("YZ_Plane"), [""])
sketch8.MapMode = "FlatFace"
sketch8.AttachmentOffset = App.Placement(Vector(0, 0, -21.125), App.Rotation())
sketch8.addGeometry(Part.Circle(Vector(41.6, -25, 0), Vector(0, 0, 1), 2.5), False)
sketch8.addGeometry(Part.Circle(Vector(41.6, -45, 0), Vector(0, 0, 1), 2.5), False)
sketch8.addConstraint(Sketcher.Constraint("Equal", 0, 1))
sketch8.addConstraint(Sketcher.Constraint("Vertical", 0, 3, 1, 3))
sketch8.addConstraint(Sketcher.Constraint("Diameter", 0, 5.0))
sketch8.addConstraint(Sketcher.Constraint("DistanceY", 1, 3, 0, 3, 20.0))
sketch8.addConstraint(Sketcher.Constraint("DistanceY", 0, 3, -1, 1, 25.0))
sketch8.addConstraint(Sketcher.Constraint("DistanceX", -1, 1, 0, 3, 41.552))
pocket4 = body.newObject("PartDesign::Pocket", "Pocket003")
pocket4.Profile = sketch8
pocket4.Length = 40
pocket4.Midplane = True
doc.recompute()

fillet = body.newObject("PartDesign::Fillet", "Fillet")
fillet.Base = (pocket4, edges_at(pocket4, [(-21.125, 26.125, -25), (-26.125, 21.125, -25)]))
fillet.Radius = 5

# Sketch on XY plane
sketch9 = body.newObject("Sketcher::SketchObject", "Sketch008")
sketch9.AttachmentSupport = (doc.getObject("XY_Plane"), [""])
sketch9.MapMode = "FlatFace"
sketch9.AttachmentOffset = App.Placement(Vector(0, 0, -35), App.Rotation())
sketch9.addGeometry(Part.LineSegment(Vector(15.7, 21.6, 0), Vector(-21.1, 21.6, 0)), False)
sketch9.addGeometry(Part.LineSegment(Vector(-21.1, 21.6, 0), Vector(-21.1, 31.1, 0)), False)
sketch9.addGeometry(Part.ArcOfCircle(Part.Circle(Vector(-16.1, 31.1, 0), Vector(0, 0, 1), 5), math.radians(180), math.radians(270)), False)
sketch9.addGeometry(Part.LineSegment(Vector(-16.1, 26.1, 0), Vector(15.7, 26.1, 0)), False)
sketch9.addGeometry(Part.LineSegment(Vector(15.7, 26.1, 0), Vector(15.7, 21.6, 0)), False)
sketch9.addGeometry(Part.LineSegment(Vector(-31.1, 21.1, 0), Vector(-26.1, 21.1, 0)), False)
sketch9.addGeometry(Part.LineSegment(Vector(-26.1, 21.1, 0), Vector(-26.1, 21.6, 0)), False)
sketch9.addGeometry(Part.LineSegment(Vector(-26.1, 21.6, 0), Vector(-21.6, 21.6, 0)), False)
sketch9.addGeometry(Part.LineSegment(Vector(-21.6, 21.6, 0), Vector(-21.6, -15.7, 0)), False)
sketch9.addGeometry(Part.LineSegment(Vector(-21.6, -15.7, 0), Vector(-26.1, -15.7, 0)), False)
sketch9.addGeometry(Part.LineSegment(Vector(-26.1, -15.7, 0), Vector(-26.1, 16.1, 0)), False)
sketch9.addGeometry(Part.ArcOfCircle(Part.Circle(Vector(-31.1, 16.1, 0), Vector(0, 0, 1), 5), math.radians(0), math.radians(90)), False)
sketch9.addConstraint(Sketcher.Constraint("Coincident", 0, 2, 1, 1))
sketch9.addConstraint(Sketcher.Constraint("Tangent", 1, 2, 2, 1))
sketch9.addConstraint(Sketcher.Constraint("Tangent", 2, 2, 3, 1))
sketch9.addConstraint(Sketcher.Constraint("Coincident", 3, 2, 4, 1))
sketch9.addConstraint(Sketcher.Constraint("Coincident", 4, 2, 0, 1))
sketch9.addConstraint(Sketcher.Constraint("Coincident", 5, 2, 6, 1))
sketch9.addConstraint(Sketcher.Constraint("Coincident", 6, 2, 7, 1))
sketch9.addConstraint(Sketcher.Constraint("Coincident", 7, 2, 8, 1))
sketch9.addConstraint(Sketcher.Constraint("Coincident", 8, 2, 9, 1))
sketch9.addConstraint(Sketcher.Constraint("Coincident", 9, 2, 10, 1))
sketch9.addConstraint(Sketcher.Constraint("Tangent", 10, 2, 11, 1))
sketch9.addConstraint(Sketcher.Constraint("Tangent", 11, 2, 5, 1))
sketch9.addConstraint(Sketcher.Constraint("Horizontal", 0))
sketch9.addConstraint(Sketcher.Constraint("Vertical", 1))
sketch9.addConstraint(Sketcher.Constraint("Horizontal", 3))
sketch9.addConstraint(Sketcher.Constraint("Vertical", 4))
sketch9.addConstraint(Sketcher.Constraint("Horizontal", 5))
sketch9.addConstraint(Sketcher.Constraint("Vertical", 6))
sketch9.addConstraint(Sketcher.Constraint("Horizontal", 7))
sketch9.addConstraint(Sketcher.Constraint("Vertical", 8))
sketch9.addConstraint(Sketcher.Constraint("Horizontal", 9))
sketch9.addConstraint(Sketcher.Constraint("Vertical", 10))
sketch9.addConstraint(Sketcher.Constraint("Equal", 2, 11))
sketch9.addConstraint(Sketcher.Constraint("Horizontal", 4, 2, 6, 2))
sketch9.addConstraint(Sketcher.Constraint("Vertical", 6, 2, 9, 2))
sketch9.addConstraint(Sketcher.Constraint("Equal", 9, 4))
sketch9.addConstraint(Sketcher.Constraint("Equal", 3, 10))
sketch9.addConstraint(Sketcher.Constraint("Radius", 2, 5.0))
sketch9.addConstraint(Sketcher.Constraint("DistanceX", 7, 1, 7, 2, 4.5))
sketch9.addConstraint(Sketcher.Constraint("DistanceY", 6, 1, 6, 2, 0.5))
sketch9.addConstraint(Sketcher.Constraint("DistanceX", 11, 3, 2, 3, 15.0))
sketch9.addConstraint(Sketcher.Constraint("DistanceX", 0, 2, 0, 1, 36.8254))
sketch9.addConstraint(Sketcher.Constraint("DistanceX", 2, 3, -1, 1, 16.125))
sketch9.addConstraint(Sketcher.Constraint("DistanceY", -1, 1, 2, 3, 31.125))
pad5 = body.newObject("PartDesign::Pad", "Pad004")
pad5.Profile = sketch9
pad5.Length = 20
pad5.Reversed = True

doc.recompute()
